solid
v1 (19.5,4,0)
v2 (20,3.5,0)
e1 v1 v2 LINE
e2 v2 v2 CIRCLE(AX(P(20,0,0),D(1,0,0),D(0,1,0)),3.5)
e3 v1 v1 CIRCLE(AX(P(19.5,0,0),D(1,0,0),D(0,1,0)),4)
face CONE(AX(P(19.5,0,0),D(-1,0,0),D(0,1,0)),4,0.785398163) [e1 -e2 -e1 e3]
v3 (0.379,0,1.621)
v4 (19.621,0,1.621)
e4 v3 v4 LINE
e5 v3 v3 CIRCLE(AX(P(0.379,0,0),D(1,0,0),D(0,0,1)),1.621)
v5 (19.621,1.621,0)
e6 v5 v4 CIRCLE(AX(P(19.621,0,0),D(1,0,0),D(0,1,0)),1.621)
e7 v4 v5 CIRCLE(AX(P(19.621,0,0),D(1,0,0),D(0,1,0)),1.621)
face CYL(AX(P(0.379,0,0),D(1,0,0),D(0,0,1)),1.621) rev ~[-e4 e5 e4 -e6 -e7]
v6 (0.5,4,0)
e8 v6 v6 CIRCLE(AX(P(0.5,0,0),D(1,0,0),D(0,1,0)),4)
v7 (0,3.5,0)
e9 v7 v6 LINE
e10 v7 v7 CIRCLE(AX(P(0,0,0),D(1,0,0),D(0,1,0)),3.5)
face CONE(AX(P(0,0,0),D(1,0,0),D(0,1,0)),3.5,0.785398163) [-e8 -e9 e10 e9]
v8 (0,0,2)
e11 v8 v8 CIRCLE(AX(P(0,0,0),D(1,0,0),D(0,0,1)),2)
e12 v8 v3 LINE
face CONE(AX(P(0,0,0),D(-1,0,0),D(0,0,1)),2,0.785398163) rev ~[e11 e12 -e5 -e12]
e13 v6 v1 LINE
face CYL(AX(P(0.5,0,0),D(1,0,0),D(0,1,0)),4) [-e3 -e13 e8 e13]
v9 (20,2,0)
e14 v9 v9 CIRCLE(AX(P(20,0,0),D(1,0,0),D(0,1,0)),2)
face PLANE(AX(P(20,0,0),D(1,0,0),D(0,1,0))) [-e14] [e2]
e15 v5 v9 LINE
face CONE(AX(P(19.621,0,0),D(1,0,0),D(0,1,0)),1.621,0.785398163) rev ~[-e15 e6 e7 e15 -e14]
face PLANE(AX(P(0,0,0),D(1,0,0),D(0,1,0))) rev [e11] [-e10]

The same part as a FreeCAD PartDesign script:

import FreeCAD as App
import Part
import Sketcher

V = App.Vector
Q = App.Units.Quantity


def add_polygon(sketch, points):
    """Adds a closed chain of lines whose ends are joined by coincident constraints."""
    first, n = sketch.GeometryCount, len(points)
    for a, b in zip(points, points[1:] + points[:1]):
        sketch.addGeometry(Part.LineSegment(App.Vector(*a, 0), App.Vector(*b, 0)), False)
    for i in range(n):
        sketch.addConstraint(Sketcher.Constraint("Coincident", first + i, 2, first + (i + 1) % n, 1))

doc = App.newDocument("Part")
params = doc.addObject("Spreadsheet::Sheet", "Params")
for row, (alias, value) in enumerate([
    ("sketch1_width", "20 mm"),
    ("sketch1_width2", "19 mm"),
    ("sketch1_height", "3.5 mm"),
    ("revolution_angle", "360 deg"),
    ("hole_diameter", "3.242 mm"),
    ("hole_depth", "29.0641 mm"),
    ("hole_csink_diameter", "4 mm"),
    ("sketch3_width", "30 mm"),
    ("sketch3_height", "2 mm"),
    ("groove_angle", "360 deg"),
], start=1):
    params.set(f"A{row}", alias)
    params.set(f"B{row}", "=" + value)
    params.setAlias(f"B{row}", alias)

body = doc.addObject("PartDesign::Body", "Body")

# Sketch on XY plane
sketch1 = body.newObject("Sketcher::SketchObject", "Sketch")
sketch1.AttachmentSupport = (doc.getObject("XY_Plane"), [""])
sketch1.MapMode = "FlatFace"
add_polygon(sketch1, [(0, 0), (20, 0), (20, 3.5), (19.5, 4), (0.5, 4), (0, 3.5)])  # lines 0-5
sketch1.addConstraint([
    Sketcher.Constraint("Horizontal", 0),
    Sketcher.Constraint("Vertical", 1),
    Sketcher.Constraint("Horizontal", 3),
    Sketcher.Constraint("Vertical", 5),
    Sketcher.Constraint("Coincident", 5, 2, -1, 1),
    Sketcher.Constraint("Perpendicular", 2, 4),
    Sketcher.Constraint("Horizontal", 1, 2, 4, 2),
    Sketcher.Constraint("Equal", 2, 4),
    Sketcher.Constraint("DistanceX", 0, 1, 0, 2, Q("20 mm")),
    Sketcher.Constraint("DistanceX", 3, 2, 3, 1, Q("19 mm")),
    Sketcher.Constraint("DistanceY", 1, 1, 1, 2, Q("3.5 mm")),
])
sketch1.setExpression("Constraints[14]", "Params.sketch1_width")
sketch1.setExpression("Constraints[15]", "Params.sketch1_width2")
sketch1.setExpression("Constraints[16]", "Params.sketch1_height")
revolution = body.newObject("PartDesign::Revolution", "Revolution")
revolution.Profile = sketch1
revolution.ReferenceAxis = (sketch1, ["H_Axis"])
revolution.setExpression("Angle", "Params.revolution_angle")

# Sketch on YZ plane
sketch2 = body.newObject("Sketcher::SketchObject", "Sketch001")
sketch2.AttachmentSupport = (doc.getObject("YZ_Plane"), [""])
sketch2.MapMode = "FlatFace"
sketch2.addGeometry(Part.Circle(V(0, 0, 0), V(0, 0, 1), 1.6), False)
sketch2.addConstraint([
    Sketcher.Constraint("Coincident", 0, 3, -1, 1),
    Sketcher.Constraint("Diameter", 0, Q("3.242 mm")),
])
doc.recompute()
hole = body.newObject("PartDesign::Hole", "Hole")
hole.Profile = sketch2
hole.ThreadType = "None"
hole.setExpression("Diameter", "Params.hole_diameter")
hole.DepthType = "Dimension"
hole.setExpression("Depth", "Params.hole_depth")
hole.DrillPoint = "Angled"
hole.DrillPointAngle = 120
hole.HoleCutType = "Countersink"
hole.setExpression("HoleCutDiameter", "Params.hole_csink_diameter")
hole.HoleCutCountersinkAngle = 90
hole.Reversed = True

# Sketch on XY plane
sketch3 = body.newObject("Sketcher::SketchObject", "Sketch002")
sketch3.AttachmentSupport = (doc.getObject("XY_Plane"), [""])
sketch3.MapMode = "FlatFace"
add_polygon(sketch3, [(-10, 0), (20, 0), (20, 2), (19.6, 1.6), (-9.1, 1.6)])  # lines 0-4
sketch3.addConstraint([
    Sketcher.Constraint("Horizontal", 0),
    Sketcher.Constraint("Vertical", 1),
    Sketcher.Constraint("Horizontal", 3),
    Sketcher.Constraint("PointOnObject", 0, 2, -1),
    Sketcher.Constraint("DistanceX", 0, 1, 0, 2, Q("30 mm")),
    Sketcher.Constraint("DistanceY", 1, 1, 1, 2, Q("2 mm")),
    Sketcher.Constraint("Angle", 2, Q("-135 deg")),
    Sketcher.Constraint("Angle", 4, Q("-120.0004 deg")),
    Sketcher.Constraint("DistanceX", -1, 1, 0, 2, Q("20 mm")),
    Sketcher.Constraint("DistanceX", 3, 2, 3, 1, Q("28.685 mm")),
])
sketch3.setExpression("Constraints[9]", "Params.sketch3_width")
sketch3.setExpression("Constraints[10]", "Params.sketch3_height")
groove = body.newObject("PartDesign::Groove", "Groove")
groove.Profile = sketch3
groove.ReferenceAxis = (sketch3, ["H_Axis"])
groove.setExpression("Angle", "Params.groove_angle")

doc.recompute()
